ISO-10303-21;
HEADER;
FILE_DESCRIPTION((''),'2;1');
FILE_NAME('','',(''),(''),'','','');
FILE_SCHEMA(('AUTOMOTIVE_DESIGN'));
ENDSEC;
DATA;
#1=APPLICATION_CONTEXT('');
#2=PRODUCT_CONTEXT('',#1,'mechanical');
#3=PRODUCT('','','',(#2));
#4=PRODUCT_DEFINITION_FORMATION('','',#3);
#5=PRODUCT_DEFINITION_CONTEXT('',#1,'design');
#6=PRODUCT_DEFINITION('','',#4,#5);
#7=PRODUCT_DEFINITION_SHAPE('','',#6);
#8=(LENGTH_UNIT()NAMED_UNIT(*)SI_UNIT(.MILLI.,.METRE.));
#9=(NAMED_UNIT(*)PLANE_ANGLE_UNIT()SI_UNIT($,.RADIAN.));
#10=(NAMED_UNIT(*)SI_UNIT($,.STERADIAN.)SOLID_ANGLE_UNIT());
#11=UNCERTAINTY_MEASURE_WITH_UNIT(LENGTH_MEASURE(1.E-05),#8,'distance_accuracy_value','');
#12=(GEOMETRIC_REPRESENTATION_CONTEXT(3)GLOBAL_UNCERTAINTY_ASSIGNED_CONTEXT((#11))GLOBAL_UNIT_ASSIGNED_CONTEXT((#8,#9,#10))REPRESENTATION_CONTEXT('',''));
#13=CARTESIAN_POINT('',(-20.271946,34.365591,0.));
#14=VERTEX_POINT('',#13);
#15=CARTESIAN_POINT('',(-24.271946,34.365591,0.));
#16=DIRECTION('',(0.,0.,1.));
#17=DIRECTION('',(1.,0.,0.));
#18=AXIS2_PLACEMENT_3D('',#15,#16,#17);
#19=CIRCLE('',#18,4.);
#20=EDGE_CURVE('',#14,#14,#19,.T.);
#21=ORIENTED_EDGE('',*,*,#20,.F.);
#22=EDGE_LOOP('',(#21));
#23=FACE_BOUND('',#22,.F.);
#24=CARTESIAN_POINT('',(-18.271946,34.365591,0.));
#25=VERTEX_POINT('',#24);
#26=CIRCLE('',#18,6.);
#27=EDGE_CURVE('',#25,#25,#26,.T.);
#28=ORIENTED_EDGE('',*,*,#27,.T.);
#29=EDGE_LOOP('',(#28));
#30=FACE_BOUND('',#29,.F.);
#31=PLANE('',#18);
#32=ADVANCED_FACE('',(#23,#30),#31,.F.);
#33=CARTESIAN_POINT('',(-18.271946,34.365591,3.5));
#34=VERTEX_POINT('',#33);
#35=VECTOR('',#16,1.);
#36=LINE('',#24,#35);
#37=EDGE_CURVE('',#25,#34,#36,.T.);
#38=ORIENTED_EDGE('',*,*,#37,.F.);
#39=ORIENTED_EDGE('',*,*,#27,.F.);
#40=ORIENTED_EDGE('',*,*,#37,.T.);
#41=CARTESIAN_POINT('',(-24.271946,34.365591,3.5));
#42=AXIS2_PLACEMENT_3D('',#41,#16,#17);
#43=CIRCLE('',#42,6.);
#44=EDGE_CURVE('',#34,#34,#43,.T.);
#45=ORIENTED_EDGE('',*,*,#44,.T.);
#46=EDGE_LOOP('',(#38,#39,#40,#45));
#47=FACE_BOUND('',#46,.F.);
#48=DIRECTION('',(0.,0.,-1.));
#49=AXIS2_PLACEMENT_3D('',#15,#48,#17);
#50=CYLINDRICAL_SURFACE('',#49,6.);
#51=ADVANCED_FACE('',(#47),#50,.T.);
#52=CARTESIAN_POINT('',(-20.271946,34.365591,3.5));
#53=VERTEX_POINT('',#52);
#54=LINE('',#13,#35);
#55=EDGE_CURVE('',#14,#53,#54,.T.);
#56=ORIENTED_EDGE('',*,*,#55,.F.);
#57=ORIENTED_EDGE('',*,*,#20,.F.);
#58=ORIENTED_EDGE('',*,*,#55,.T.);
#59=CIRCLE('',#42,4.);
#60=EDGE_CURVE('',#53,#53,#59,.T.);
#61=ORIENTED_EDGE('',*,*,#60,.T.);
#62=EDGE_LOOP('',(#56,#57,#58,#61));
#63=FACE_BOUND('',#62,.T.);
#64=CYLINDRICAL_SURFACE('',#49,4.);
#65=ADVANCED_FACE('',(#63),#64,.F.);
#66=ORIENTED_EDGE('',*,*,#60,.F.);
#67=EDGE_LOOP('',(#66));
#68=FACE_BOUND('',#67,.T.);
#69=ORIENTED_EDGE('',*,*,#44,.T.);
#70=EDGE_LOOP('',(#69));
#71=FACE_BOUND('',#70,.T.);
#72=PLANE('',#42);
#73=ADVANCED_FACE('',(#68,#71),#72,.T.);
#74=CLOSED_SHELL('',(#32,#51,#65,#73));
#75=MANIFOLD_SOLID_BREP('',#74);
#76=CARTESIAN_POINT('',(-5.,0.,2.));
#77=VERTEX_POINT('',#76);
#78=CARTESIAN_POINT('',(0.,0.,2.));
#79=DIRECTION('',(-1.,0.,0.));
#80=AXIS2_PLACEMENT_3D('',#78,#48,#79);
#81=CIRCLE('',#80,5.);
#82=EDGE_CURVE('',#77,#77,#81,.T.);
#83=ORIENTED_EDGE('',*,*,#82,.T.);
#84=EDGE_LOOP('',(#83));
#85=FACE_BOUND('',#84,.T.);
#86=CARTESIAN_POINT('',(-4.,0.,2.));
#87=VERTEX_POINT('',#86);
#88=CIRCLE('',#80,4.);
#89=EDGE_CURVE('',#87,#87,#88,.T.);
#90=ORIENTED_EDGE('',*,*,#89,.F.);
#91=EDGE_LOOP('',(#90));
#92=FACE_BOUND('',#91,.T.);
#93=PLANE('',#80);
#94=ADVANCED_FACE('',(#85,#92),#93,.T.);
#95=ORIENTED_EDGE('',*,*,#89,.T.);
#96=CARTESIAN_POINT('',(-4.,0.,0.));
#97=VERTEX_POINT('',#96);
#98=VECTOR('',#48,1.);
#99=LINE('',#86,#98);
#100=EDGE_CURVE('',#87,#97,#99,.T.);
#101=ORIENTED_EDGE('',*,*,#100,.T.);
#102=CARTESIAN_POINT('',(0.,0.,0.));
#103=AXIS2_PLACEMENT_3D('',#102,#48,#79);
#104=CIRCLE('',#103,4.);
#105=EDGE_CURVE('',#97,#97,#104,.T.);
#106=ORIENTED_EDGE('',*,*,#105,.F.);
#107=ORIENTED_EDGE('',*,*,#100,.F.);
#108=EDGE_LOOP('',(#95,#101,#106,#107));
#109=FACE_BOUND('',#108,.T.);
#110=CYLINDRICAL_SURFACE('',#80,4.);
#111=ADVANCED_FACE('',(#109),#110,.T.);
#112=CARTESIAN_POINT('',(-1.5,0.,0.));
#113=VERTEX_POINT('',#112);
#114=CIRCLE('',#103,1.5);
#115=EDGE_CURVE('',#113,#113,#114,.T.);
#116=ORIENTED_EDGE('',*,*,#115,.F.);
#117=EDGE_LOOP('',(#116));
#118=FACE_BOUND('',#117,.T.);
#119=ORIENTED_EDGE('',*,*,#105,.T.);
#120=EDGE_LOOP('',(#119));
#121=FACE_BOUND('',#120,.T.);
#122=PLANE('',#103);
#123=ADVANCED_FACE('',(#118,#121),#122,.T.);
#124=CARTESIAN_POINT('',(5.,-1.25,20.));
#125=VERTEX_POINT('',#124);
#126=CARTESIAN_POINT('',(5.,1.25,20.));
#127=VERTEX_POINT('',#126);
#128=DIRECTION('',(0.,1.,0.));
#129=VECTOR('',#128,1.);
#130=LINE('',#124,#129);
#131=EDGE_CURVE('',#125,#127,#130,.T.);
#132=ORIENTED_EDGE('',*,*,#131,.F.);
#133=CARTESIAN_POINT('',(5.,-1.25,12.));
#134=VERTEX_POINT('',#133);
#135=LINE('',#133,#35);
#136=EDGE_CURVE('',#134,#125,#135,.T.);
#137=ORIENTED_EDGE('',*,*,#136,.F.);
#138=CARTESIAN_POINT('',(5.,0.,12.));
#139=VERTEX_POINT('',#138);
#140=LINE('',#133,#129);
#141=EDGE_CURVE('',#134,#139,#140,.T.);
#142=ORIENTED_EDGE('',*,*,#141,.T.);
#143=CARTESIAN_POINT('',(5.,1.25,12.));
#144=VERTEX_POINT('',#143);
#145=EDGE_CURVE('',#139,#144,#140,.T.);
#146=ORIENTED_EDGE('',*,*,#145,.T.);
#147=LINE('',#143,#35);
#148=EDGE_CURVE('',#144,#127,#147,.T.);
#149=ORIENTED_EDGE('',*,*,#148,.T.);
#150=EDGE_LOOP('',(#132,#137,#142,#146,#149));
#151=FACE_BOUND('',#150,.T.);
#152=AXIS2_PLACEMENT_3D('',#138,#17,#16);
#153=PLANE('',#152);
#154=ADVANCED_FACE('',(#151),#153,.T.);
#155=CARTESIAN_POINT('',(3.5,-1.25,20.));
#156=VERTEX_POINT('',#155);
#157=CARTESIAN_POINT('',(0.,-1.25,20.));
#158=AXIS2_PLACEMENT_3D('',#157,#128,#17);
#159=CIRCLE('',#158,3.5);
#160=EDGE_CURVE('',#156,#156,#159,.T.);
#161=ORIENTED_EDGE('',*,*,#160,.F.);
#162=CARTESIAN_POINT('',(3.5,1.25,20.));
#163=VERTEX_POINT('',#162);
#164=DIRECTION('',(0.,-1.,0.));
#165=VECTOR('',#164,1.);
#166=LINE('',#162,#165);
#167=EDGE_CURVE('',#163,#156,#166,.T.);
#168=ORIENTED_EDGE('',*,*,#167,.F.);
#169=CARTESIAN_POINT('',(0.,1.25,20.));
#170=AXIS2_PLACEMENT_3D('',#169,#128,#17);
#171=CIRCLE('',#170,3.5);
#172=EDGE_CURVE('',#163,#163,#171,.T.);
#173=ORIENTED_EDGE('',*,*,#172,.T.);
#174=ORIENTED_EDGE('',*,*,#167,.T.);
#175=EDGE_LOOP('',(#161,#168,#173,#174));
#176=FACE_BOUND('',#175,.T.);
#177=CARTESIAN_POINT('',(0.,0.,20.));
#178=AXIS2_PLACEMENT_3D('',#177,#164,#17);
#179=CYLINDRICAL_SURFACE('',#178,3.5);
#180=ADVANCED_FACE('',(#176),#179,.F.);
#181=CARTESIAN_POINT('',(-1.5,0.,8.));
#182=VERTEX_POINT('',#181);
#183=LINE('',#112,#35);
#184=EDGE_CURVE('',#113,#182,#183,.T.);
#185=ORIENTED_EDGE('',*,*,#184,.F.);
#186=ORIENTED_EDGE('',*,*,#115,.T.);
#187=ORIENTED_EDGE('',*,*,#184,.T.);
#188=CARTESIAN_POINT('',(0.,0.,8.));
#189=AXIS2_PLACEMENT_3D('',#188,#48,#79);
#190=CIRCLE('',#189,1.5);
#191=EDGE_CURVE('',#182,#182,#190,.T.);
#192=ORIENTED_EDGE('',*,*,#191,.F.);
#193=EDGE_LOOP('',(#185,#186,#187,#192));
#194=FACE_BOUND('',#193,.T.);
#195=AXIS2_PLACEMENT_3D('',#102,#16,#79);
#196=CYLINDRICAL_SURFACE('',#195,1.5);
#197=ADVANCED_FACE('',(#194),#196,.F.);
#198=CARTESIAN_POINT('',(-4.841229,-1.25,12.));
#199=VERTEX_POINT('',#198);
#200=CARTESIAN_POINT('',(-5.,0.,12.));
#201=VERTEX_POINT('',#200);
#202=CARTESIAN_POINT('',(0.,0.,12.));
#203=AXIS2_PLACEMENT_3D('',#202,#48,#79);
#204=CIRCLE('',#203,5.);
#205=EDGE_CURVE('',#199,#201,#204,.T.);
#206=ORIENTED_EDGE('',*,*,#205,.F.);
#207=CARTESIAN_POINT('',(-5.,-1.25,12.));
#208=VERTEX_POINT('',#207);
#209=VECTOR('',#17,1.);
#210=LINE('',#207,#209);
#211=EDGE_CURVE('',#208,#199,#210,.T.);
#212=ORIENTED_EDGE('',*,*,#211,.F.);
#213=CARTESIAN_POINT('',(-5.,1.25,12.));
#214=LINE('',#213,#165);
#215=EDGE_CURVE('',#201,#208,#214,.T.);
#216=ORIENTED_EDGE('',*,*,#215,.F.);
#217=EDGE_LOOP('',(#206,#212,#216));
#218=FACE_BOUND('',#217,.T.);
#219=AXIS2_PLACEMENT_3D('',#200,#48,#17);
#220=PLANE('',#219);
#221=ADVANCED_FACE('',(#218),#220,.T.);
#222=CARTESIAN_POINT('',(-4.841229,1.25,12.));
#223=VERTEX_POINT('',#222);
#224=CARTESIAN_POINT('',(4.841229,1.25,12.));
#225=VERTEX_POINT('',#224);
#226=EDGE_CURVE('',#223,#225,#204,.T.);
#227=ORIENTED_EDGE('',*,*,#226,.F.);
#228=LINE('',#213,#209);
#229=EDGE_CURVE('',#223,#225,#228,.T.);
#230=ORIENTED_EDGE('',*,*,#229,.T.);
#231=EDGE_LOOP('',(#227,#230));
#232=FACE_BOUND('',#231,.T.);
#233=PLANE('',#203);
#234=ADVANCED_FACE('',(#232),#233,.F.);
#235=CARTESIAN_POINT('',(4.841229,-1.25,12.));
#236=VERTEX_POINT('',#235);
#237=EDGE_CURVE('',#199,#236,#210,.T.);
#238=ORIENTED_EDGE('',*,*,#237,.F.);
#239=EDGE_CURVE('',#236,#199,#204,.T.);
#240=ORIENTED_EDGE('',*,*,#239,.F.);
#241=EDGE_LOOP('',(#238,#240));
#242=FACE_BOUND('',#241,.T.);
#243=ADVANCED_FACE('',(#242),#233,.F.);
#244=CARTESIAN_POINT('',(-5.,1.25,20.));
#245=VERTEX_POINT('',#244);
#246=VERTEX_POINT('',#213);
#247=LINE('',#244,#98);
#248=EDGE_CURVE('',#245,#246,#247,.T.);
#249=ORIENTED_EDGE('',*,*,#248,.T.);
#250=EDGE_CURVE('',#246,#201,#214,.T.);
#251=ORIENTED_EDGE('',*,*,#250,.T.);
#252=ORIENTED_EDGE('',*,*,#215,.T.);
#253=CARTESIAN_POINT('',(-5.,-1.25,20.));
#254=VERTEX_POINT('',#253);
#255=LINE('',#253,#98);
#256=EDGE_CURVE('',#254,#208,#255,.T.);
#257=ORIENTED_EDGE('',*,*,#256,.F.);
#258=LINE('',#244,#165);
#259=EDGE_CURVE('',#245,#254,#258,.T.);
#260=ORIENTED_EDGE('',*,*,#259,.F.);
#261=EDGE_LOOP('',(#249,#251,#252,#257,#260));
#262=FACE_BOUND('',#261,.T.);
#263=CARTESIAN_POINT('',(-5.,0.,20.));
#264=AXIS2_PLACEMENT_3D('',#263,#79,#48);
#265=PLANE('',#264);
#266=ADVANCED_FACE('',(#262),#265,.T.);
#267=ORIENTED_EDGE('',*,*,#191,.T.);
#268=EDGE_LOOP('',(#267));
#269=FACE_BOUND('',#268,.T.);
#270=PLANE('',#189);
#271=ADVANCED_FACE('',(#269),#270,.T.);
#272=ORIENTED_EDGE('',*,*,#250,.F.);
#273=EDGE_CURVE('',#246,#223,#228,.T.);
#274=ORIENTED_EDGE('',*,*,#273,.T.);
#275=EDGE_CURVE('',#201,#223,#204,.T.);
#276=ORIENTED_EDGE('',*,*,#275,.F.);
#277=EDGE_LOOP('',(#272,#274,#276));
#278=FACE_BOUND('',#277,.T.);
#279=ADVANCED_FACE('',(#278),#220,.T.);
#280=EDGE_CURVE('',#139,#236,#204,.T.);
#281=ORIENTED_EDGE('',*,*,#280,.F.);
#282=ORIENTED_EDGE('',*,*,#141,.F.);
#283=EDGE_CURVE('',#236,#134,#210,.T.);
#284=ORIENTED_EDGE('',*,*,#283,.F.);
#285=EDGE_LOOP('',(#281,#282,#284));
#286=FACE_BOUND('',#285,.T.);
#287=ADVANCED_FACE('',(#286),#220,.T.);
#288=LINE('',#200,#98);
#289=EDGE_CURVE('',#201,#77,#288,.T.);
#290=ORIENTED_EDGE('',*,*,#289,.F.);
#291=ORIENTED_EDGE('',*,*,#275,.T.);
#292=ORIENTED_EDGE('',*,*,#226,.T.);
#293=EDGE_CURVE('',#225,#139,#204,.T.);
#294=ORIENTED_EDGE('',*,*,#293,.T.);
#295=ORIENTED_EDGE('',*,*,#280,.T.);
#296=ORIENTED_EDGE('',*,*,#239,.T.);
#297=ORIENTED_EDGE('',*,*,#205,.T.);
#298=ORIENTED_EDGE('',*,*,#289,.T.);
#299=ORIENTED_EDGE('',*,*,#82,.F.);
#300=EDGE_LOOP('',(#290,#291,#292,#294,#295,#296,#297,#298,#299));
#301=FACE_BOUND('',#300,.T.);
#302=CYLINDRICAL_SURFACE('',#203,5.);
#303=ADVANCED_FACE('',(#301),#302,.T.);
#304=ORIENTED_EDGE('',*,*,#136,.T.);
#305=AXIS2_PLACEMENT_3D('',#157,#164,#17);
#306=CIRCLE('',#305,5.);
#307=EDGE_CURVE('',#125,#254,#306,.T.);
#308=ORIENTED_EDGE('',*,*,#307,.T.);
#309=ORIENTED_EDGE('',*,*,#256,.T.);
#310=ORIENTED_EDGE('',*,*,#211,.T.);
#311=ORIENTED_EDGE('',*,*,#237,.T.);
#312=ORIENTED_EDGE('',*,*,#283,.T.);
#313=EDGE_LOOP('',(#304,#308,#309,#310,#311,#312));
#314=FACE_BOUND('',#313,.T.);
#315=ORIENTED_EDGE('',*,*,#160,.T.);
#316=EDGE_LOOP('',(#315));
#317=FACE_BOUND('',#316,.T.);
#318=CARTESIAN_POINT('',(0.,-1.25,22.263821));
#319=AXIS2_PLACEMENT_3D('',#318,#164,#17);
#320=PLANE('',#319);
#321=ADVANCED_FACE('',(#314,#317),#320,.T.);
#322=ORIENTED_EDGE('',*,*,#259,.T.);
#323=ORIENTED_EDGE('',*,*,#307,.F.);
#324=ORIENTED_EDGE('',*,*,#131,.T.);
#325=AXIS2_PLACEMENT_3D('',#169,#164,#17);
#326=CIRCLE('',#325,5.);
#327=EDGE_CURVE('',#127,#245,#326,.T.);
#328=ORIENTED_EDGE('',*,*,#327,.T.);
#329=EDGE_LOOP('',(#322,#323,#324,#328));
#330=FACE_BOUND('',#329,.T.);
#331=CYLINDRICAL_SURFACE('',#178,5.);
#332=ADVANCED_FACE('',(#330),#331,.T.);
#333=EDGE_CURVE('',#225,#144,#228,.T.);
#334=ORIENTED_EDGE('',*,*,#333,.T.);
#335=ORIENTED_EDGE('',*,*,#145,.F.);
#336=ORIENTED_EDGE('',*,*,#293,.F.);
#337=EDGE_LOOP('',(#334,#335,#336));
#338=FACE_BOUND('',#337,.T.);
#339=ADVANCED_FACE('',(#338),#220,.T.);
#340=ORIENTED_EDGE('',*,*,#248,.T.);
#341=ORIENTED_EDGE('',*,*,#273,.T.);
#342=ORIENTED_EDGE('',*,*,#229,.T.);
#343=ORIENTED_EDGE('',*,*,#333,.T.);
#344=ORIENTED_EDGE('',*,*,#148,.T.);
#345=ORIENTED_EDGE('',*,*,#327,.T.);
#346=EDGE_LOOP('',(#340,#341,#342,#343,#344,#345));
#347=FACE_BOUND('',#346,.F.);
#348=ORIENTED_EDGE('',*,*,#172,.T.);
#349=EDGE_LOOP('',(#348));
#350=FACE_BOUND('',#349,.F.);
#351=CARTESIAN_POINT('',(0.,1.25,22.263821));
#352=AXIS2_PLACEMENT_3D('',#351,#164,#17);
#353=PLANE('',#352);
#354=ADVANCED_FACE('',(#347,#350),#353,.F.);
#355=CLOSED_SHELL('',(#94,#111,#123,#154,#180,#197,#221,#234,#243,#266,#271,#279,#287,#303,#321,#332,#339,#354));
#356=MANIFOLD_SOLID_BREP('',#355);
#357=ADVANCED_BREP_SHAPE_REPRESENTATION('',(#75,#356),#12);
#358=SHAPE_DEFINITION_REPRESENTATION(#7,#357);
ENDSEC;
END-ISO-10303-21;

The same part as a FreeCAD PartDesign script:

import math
import FreeCAD as App
import Part
import Sketcher


def add_polygon(sketch, points):
    """Adds a closed chain of lines whose ends are joined by coincident constraints."""
    first, n = sketch.GeometryCount, len(points)
    for a, b in zip(points, points[1:] + points[:1]):
        sketch.addGeometry(Part.LineSegment(App.Vector(*a, 0), App.Vector(*b, 0)), False)
    for i in range(n):
        sketch.addConstraint(Sketcher.Constraint("Coincident", first + i, 2, first + (i + 1) % n, 1))

doc = App.newDocument("Part")
body = doc.addObject("PartDesign::Body", "Body")

# Sketch on XZ plane
sketch1 = body.newObject("Sketcher::SketchObject", "Sketch")
sketch1.AttachmentSupport = (doc.getObject("XZ_Plane"), [""])
sketch1.MapMode = "FlatFace"
add_polygon(sketch1, [(-4, 0), (-1.5, 0), (-1.5, 8), (0, 8), (0, 12), (-5, 12), (-5, 2), (-4, 2)])  # lines 0-7
sketch1.addConstraint(Sketcher.Constraint("Horizontal", 0))
sketch1.addConstraint(Sketcher.Constraint("Vertical", 1))
sketch1.addConstraint(Sketcher.Constraint("Horizontal", 2))
sketch1.addConstraint(Sketcher.Constraint("Vertical", 3))
sketch1.addConstraint(Sketcher.Constraint("Horizontal", 4))
sketch1.addConstraint(Sketcher.Constraint("Vertical", 5))
sketch1.addConstraint(Sketcher.Constraint("Horizontal", 6))
sketch1.addConstraint(Sketcher.Constraint("Vertical", 7))
sketch1.addConstraint(Sketcher.Constraint("PointOnObject", 0, 2, -1))
sketch1.addConstraint(Sketcher.Constraint("PointOnObject", 2, 2, -2))
sketch1.addConstraint(Sketcher.Constraint("DistanceX", 4, 2, 4, 1, 5.0))
sketch1.addConstraint(Sketcher.Constraint("DistanceX", 6, 1, 6, 2, 1.0))
sketch1.addConstraint(Sketcher.Constraint("DistanceY", 1, 1, 1, 2, 8.0))
sketch1.addConstraint(Sketcher.Constraint("DistanceY", 3, 1, 3, 2, 4.0))
sketch1.addConstraint(Sketcher.Constraint("DistanceY", 5, 2, 5, 1, 10.0))
sketch1.addConstraint(Sketcher.Constraint("DistanceX", 0, 1, 0, 2, 2.5))
revolution = body.newObject("PartDesign::Revolution", "Revolution")
revolution.Profile = sketch1
revolution.ReferenceAxis = (sketch1, ["V_Axis"])
revolution.Angle = 360

# Sketch on XZ plane
sketch2 = body.newObject("Sketcher::SketchObject", "Sketch001")
sketch2.AttachmentSupport = (doc.getObject("XZ_Plane"), [""])
sketch2.MapMode = "FlatFace"
sketch2.addGeometry(Part.ArcOfCircle(Part.Circle(App.Vector(0, 20, 0), App.Vector(0, 0, 1), 5), math.radians(0), math.radians(180)), False)
sketch2.addGeometry(Part.LineSegment(App.Vector(-5, 20, 0), App.Vector(-5, 12, 0)), False)
sketch2.addGeometry(Part.LineSegment(App.Vector(-5, 12, 0), App.Vector(5, 12, 0)), False)
sketch2.addGeometry(Part.LineSegment(App.Vector(5, 12, 0), App.Vector(5, 20, 0)), False)
sketch2.addGeometry(Part.Circle(App.Vector(0, 20, 0), App.Vector(0, 0, 1), 3.5), False)
sketch2.addConstraint(Sketcher.Constraint("Tangent", 0, 2, 1, 1))
sketch2.addConstraint(Sketcher.Constraint("Coincident", 1, 2, 2, 1))
sketch2.addConstraint(Sketcher.Constraint("Coincident", 2, 2, 3, 1))
sketch2.addConstraint(Sketcher.Constraint("Tangent", 3, 2, 0, 1))
sketch2.addConstraint(Sketcher.Constraint("Vertical", 1))
sketch2.addConstraint(Sketcher.Constraint("Horizontal", 2))
sketch2.addConstraint(Sketcher.Constraint("Vertical", 3))
sketch2.addConstraint(Sketcher.Constraint("Coincident", 4, 3, 0, 3))
sketch2.addConstraint(Sketcher.Constraint("PointOnObject", 0, 3, -2))
sketch2.addConstraint(Sketcher.Constraint("Diameter", 4, 7.0))
sketch2.addConstraint(Sketcher.Constraint("Radius", 0, 5.0))
sketch2.addConstraint(Sketcher.Constraint("DistanceY", 1, 2, 1, 1, 8.0))
sketch2.addConstraint(Sketcher.Constraint("DistanceY", -1, 1, 0, 3, 20.0))
pad1 = body.newObject("PartDesign::Pad", "Pad")
pad1.Profile = sketch2
pad1.Length = 2.5
pad1.Midplane = True
body2 = doc.addObject("PartDesign::Body", "Body001")

# Sketch on XY plane
sketch3 = body2.newObject("Sketcher::SketchObject", "Sketch002")
sketch3.AttachmentSupport = (doc.getObject("XY_Plane001"), [""])
sketch3.MapMode = "FlatFace"
sketch3.addGeometry(Part.Circle(App.Vector(-24.271946, 34.365591, 0), App.Vector(0, 0, 1), 6), False)
sketch3.addGeometry(Part.Circle(App.Vector(-24.271946, 34.365591, 0), App.Vector(0, 0, 1), 4), False)
sketch3.addConstraint(Sketcher.Constraint("Coincident", 1, 3, 0, 3))
sketch3.addConstraint(Sketcher.Constraint("Diameter", 0, 12.0))
sketch3.addConstraint(Sketcher.Constraint("Diameter", 1, 8.0))
sketch3.addConstraint(Sketcher.Constraint("DistanceY", -1, 1, 0, 3, 34.365591))
sketch3.addConstraint(Sketcher.Constraint("DistanceX", 0, 3, -1, 1, 24.271946))
pad2 = body2.newObject("PartDesign::Pad", "Pad001")
pad2.Profile = sketch3
pad2.Length = 3.5

doc.recompute()
